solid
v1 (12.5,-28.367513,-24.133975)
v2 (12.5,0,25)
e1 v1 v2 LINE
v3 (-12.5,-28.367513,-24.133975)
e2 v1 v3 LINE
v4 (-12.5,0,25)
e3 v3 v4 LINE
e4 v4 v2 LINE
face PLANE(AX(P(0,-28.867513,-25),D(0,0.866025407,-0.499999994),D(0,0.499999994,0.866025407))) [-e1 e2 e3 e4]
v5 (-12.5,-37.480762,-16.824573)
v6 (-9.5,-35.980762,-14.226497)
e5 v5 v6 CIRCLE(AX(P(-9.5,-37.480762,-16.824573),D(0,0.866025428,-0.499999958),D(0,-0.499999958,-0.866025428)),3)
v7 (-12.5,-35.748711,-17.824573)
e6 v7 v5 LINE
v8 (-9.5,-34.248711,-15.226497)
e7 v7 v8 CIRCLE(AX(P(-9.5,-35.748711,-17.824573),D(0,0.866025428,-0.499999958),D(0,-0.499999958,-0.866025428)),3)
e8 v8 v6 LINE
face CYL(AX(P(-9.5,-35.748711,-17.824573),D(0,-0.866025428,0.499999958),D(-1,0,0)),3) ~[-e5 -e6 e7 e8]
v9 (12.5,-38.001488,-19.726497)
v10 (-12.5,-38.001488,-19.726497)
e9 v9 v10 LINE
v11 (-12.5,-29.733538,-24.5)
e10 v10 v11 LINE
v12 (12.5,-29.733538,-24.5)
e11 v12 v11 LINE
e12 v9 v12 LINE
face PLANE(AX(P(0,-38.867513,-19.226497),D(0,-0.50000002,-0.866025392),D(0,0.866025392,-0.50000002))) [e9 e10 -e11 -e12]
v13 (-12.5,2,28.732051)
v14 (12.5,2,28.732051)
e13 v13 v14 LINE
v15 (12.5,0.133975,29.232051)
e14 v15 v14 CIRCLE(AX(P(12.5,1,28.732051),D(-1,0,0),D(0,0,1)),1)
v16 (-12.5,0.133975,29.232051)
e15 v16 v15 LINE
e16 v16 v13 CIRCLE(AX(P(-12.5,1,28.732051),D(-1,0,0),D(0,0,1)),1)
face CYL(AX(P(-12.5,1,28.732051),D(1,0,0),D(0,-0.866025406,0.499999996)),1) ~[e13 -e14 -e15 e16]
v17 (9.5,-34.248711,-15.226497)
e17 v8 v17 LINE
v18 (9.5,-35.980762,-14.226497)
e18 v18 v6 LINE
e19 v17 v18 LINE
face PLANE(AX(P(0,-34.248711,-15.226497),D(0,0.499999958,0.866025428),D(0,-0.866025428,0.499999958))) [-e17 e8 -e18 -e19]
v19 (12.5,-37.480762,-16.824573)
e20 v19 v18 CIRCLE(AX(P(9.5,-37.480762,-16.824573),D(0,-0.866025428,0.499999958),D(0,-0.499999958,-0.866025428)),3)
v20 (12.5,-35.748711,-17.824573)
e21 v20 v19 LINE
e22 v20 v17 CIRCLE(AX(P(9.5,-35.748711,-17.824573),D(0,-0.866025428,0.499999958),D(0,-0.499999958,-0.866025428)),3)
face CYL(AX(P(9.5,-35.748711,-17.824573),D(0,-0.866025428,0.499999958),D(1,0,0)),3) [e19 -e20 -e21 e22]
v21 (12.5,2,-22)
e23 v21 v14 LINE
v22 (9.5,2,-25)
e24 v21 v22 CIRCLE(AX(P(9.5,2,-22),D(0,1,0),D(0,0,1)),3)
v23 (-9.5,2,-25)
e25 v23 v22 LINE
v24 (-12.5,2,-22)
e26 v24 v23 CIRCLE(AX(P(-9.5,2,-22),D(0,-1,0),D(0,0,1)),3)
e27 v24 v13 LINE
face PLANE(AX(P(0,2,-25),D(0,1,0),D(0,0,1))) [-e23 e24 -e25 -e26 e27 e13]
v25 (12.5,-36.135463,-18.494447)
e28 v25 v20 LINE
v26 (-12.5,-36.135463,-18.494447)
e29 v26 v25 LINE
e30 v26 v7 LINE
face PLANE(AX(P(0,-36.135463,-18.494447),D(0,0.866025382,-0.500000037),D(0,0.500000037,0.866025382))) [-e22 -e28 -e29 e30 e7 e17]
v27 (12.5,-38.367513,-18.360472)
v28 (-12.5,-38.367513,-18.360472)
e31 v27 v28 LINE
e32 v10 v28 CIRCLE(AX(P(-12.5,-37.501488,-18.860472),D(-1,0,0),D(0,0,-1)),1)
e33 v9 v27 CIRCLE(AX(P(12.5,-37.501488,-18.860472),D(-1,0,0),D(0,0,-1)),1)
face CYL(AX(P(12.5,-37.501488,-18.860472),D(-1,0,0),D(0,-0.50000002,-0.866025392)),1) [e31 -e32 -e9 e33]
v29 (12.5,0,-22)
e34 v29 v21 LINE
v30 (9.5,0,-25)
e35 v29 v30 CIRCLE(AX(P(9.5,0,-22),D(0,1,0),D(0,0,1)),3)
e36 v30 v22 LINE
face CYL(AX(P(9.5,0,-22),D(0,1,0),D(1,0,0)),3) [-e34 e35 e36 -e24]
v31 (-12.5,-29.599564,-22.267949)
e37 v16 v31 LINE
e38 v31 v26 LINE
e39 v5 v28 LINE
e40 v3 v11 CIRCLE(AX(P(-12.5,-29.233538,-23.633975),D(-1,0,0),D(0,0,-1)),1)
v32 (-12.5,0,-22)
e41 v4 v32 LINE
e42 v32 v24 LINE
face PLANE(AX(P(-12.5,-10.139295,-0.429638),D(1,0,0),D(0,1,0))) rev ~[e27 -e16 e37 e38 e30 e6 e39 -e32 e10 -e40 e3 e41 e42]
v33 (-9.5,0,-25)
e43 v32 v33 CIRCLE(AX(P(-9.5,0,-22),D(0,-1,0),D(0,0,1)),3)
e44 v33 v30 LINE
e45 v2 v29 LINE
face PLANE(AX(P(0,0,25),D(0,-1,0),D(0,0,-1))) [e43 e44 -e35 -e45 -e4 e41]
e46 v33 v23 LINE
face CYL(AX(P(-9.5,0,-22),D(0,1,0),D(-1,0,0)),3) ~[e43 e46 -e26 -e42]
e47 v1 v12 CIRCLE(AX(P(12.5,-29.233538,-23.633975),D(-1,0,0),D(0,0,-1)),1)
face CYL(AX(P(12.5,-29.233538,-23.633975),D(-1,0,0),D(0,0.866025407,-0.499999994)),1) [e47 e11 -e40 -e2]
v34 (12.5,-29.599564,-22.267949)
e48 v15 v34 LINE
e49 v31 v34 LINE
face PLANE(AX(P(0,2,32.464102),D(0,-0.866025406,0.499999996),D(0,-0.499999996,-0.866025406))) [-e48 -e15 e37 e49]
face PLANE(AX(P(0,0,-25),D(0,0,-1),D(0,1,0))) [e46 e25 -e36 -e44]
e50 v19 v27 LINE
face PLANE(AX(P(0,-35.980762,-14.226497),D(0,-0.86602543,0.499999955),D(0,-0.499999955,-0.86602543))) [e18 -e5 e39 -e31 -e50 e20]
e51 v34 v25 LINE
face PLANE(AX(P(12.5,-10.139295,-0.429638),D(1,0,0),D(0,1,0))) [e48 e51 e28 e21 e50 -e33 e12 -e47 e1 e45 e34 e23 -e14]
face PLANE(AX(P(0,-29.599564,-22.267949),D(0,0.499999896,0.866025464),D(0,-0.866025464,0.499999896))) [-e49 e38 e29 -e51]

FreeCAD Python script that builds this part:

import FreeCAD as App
import Part
import Sketcher
Q = App.Units.Quantity


def edges_at(feature, points):
    """Names of the edges that pass closest to the given points."""
    edges = feature.Shape.Edges
    near = lambda p: min(range(len(edges)), key=lambda i: edges[i].distToShape(Part.Vertex(*p))[0])
    return sorted({f"Edge{near(p) + 1}" for p in points})

doc = App.newDocument("Part")
body = doc.addObject("PartDesign::Body", "Body")

# Sketch on YZ plane
sketch1 = body.newObject("Sketcher::SketchObject", "Sketch")
sketch1.AttachmentSupport = (doc.getObject("YZ_Plane"), [""])
sketch1.MapMode = "FlatFace"
sketch1.addGeometry([
    Part.LineSegment(App.Vector(-28.9, -25, 0), App.Vector(0, 25, 0)),  # 0
    Part.LineSegment(App.Vector(0, 25, 0), App.Vector(0, -25, 0)),  # 1
    Part.LineSegment(App.Vector(0, -25, 0), App.Vector(2, -25, 0)),  # 2
    Part.LineSegment(App.Vector(2, -25, 0), App.Vector(2, 32.5, 0)),  # 3
    Part.LineSegment(App.Vector(2, 32.5, 0), App.Vector(-29.6, -22.3, 0)),  # 4
    Part.LineSegment(App.Vector(-29.6, -22.3, 0), App.Vector(-36.1, -18.5, 0)),  # 5
    Part.LineSegment(App.Vector(-36.1, -18.5, 0), App.Vector(-34.2, -15.2, 0)),  # 6
    Part.LineSegment(App.Vector(-34.2, -15.2, 0), App.Vector(-36, -14.2, 0)),  # 7
    Part.LineSegment(App.Vector(-36, -14.2, 0), App.Vector(-38.9, -19.2, 0)),  # 8
    Part.LineSegment(App.Vector(-38.9, -19.2, 0), App.Vector(-28.9, -25, 0)),  # 9
], False)
sketch1.addConstraint([
    Sketcher.Constraint("Coincident", 0, 2, 1, 1),
    Sketcher.Constraint("Coincident", 1, 2, 2, 1),
    Sketcher.Constraint("Coincident", 2, 2, 3, 1),
    Sketcher.Constraint("Coincident", 3, 2, 4, 1),
    Sketcher.Constraint("Coincident", 4, 2, 5, 1),
    Sketcher.Constraint("Coincident", 5, 2, 6, 1),
    Sketcher.Constraint("Coincident", 6, 2, 7, 1),
    Sketcher.Constraint("Coincident", 7, 2, 8, 1),
    Sketcher.Constraint("Coincident", 8, 2, 9, 1),
    Sketcher.Constraint("Coincident", 9, 2, 0, 1),
    Sketcher.Constraint("Vertical", 1),
    Sketcher.Constraint("Horizontal", 2),
    Sketcher.Constraint("Vertical", 3),
    Sketcher.Constraint("Symmetric", 0, 2, 1, 2, -1, 1),
    Sketcher.Constraint("Parallel", 0, 4),
    Sketcher.Constraint("Perpendicular", 4, 5),
    Sketcher.Constraint("Perpendicular", 5, 6),
    Sketcher.Constraint("Perpendicular", 6, 7),
    Sketcher.Constraint("Perpendicular", 7, 8),
    Sketcher.Constraint("Perpendicular", 8, 9),
    Sketcher.Constraint("Horizontal", 2, 2, 9, 2),
    Sketcher.Constraint("DistanceX", 2, 1, 2, 2, Q("2 mm")),
    Sketcher.Constraint("DistanceY", 1, 2, 1, 1, Q("50 mm")),
    Sketcher.Constraint("Angle", 0, Q("60 deg")),
    Sketcher.Constraint("Distance", 7, Q("2 mm")),
    Sketcher.Constraint("DistanceY", 8, 2, 7, 2, Q("5 mm")),
    Sketcher.Constraint("DistanceX", 8, 2, 9, 2, Q("10 mm")),
    Sketcher.Constraint("DistanceY", 3, 1, 3, 2, Q("57.464102 mm")),
    Sketcher.Constraint("DistanceX", 5, 2, 7, 2, Q("0.154701 mm")),
])
pad1 = body.newObject("PartDesign::Pad", "Pad")
pad1.Profile = sketch1
pad1.Length = 25
pad1.Midplane = True
doc.recompute()

fillet = body.newObject("PartDesign::Fillet", "Fillet")
fillet.Base = (pad1, edges_at(pad1, [(0, 2, 32.464), (0, -38.868, -19.226), (0, -28.868, -25)]))
fillet.Radius = 1
doc.recompute()

fillet2 = body.newObject("PartDesign::Fillet", "Fillet001")
fillet2.Base = (fillet, edges_at(fillet, [
    (12.5, 1, -25),
    (-12.5, 1, -25),
    (12.5, -35.115, -14.726),
    (-12.5, -35.115, -14.726),
]))
fillet2.Radius = 3

doc.recompute()
